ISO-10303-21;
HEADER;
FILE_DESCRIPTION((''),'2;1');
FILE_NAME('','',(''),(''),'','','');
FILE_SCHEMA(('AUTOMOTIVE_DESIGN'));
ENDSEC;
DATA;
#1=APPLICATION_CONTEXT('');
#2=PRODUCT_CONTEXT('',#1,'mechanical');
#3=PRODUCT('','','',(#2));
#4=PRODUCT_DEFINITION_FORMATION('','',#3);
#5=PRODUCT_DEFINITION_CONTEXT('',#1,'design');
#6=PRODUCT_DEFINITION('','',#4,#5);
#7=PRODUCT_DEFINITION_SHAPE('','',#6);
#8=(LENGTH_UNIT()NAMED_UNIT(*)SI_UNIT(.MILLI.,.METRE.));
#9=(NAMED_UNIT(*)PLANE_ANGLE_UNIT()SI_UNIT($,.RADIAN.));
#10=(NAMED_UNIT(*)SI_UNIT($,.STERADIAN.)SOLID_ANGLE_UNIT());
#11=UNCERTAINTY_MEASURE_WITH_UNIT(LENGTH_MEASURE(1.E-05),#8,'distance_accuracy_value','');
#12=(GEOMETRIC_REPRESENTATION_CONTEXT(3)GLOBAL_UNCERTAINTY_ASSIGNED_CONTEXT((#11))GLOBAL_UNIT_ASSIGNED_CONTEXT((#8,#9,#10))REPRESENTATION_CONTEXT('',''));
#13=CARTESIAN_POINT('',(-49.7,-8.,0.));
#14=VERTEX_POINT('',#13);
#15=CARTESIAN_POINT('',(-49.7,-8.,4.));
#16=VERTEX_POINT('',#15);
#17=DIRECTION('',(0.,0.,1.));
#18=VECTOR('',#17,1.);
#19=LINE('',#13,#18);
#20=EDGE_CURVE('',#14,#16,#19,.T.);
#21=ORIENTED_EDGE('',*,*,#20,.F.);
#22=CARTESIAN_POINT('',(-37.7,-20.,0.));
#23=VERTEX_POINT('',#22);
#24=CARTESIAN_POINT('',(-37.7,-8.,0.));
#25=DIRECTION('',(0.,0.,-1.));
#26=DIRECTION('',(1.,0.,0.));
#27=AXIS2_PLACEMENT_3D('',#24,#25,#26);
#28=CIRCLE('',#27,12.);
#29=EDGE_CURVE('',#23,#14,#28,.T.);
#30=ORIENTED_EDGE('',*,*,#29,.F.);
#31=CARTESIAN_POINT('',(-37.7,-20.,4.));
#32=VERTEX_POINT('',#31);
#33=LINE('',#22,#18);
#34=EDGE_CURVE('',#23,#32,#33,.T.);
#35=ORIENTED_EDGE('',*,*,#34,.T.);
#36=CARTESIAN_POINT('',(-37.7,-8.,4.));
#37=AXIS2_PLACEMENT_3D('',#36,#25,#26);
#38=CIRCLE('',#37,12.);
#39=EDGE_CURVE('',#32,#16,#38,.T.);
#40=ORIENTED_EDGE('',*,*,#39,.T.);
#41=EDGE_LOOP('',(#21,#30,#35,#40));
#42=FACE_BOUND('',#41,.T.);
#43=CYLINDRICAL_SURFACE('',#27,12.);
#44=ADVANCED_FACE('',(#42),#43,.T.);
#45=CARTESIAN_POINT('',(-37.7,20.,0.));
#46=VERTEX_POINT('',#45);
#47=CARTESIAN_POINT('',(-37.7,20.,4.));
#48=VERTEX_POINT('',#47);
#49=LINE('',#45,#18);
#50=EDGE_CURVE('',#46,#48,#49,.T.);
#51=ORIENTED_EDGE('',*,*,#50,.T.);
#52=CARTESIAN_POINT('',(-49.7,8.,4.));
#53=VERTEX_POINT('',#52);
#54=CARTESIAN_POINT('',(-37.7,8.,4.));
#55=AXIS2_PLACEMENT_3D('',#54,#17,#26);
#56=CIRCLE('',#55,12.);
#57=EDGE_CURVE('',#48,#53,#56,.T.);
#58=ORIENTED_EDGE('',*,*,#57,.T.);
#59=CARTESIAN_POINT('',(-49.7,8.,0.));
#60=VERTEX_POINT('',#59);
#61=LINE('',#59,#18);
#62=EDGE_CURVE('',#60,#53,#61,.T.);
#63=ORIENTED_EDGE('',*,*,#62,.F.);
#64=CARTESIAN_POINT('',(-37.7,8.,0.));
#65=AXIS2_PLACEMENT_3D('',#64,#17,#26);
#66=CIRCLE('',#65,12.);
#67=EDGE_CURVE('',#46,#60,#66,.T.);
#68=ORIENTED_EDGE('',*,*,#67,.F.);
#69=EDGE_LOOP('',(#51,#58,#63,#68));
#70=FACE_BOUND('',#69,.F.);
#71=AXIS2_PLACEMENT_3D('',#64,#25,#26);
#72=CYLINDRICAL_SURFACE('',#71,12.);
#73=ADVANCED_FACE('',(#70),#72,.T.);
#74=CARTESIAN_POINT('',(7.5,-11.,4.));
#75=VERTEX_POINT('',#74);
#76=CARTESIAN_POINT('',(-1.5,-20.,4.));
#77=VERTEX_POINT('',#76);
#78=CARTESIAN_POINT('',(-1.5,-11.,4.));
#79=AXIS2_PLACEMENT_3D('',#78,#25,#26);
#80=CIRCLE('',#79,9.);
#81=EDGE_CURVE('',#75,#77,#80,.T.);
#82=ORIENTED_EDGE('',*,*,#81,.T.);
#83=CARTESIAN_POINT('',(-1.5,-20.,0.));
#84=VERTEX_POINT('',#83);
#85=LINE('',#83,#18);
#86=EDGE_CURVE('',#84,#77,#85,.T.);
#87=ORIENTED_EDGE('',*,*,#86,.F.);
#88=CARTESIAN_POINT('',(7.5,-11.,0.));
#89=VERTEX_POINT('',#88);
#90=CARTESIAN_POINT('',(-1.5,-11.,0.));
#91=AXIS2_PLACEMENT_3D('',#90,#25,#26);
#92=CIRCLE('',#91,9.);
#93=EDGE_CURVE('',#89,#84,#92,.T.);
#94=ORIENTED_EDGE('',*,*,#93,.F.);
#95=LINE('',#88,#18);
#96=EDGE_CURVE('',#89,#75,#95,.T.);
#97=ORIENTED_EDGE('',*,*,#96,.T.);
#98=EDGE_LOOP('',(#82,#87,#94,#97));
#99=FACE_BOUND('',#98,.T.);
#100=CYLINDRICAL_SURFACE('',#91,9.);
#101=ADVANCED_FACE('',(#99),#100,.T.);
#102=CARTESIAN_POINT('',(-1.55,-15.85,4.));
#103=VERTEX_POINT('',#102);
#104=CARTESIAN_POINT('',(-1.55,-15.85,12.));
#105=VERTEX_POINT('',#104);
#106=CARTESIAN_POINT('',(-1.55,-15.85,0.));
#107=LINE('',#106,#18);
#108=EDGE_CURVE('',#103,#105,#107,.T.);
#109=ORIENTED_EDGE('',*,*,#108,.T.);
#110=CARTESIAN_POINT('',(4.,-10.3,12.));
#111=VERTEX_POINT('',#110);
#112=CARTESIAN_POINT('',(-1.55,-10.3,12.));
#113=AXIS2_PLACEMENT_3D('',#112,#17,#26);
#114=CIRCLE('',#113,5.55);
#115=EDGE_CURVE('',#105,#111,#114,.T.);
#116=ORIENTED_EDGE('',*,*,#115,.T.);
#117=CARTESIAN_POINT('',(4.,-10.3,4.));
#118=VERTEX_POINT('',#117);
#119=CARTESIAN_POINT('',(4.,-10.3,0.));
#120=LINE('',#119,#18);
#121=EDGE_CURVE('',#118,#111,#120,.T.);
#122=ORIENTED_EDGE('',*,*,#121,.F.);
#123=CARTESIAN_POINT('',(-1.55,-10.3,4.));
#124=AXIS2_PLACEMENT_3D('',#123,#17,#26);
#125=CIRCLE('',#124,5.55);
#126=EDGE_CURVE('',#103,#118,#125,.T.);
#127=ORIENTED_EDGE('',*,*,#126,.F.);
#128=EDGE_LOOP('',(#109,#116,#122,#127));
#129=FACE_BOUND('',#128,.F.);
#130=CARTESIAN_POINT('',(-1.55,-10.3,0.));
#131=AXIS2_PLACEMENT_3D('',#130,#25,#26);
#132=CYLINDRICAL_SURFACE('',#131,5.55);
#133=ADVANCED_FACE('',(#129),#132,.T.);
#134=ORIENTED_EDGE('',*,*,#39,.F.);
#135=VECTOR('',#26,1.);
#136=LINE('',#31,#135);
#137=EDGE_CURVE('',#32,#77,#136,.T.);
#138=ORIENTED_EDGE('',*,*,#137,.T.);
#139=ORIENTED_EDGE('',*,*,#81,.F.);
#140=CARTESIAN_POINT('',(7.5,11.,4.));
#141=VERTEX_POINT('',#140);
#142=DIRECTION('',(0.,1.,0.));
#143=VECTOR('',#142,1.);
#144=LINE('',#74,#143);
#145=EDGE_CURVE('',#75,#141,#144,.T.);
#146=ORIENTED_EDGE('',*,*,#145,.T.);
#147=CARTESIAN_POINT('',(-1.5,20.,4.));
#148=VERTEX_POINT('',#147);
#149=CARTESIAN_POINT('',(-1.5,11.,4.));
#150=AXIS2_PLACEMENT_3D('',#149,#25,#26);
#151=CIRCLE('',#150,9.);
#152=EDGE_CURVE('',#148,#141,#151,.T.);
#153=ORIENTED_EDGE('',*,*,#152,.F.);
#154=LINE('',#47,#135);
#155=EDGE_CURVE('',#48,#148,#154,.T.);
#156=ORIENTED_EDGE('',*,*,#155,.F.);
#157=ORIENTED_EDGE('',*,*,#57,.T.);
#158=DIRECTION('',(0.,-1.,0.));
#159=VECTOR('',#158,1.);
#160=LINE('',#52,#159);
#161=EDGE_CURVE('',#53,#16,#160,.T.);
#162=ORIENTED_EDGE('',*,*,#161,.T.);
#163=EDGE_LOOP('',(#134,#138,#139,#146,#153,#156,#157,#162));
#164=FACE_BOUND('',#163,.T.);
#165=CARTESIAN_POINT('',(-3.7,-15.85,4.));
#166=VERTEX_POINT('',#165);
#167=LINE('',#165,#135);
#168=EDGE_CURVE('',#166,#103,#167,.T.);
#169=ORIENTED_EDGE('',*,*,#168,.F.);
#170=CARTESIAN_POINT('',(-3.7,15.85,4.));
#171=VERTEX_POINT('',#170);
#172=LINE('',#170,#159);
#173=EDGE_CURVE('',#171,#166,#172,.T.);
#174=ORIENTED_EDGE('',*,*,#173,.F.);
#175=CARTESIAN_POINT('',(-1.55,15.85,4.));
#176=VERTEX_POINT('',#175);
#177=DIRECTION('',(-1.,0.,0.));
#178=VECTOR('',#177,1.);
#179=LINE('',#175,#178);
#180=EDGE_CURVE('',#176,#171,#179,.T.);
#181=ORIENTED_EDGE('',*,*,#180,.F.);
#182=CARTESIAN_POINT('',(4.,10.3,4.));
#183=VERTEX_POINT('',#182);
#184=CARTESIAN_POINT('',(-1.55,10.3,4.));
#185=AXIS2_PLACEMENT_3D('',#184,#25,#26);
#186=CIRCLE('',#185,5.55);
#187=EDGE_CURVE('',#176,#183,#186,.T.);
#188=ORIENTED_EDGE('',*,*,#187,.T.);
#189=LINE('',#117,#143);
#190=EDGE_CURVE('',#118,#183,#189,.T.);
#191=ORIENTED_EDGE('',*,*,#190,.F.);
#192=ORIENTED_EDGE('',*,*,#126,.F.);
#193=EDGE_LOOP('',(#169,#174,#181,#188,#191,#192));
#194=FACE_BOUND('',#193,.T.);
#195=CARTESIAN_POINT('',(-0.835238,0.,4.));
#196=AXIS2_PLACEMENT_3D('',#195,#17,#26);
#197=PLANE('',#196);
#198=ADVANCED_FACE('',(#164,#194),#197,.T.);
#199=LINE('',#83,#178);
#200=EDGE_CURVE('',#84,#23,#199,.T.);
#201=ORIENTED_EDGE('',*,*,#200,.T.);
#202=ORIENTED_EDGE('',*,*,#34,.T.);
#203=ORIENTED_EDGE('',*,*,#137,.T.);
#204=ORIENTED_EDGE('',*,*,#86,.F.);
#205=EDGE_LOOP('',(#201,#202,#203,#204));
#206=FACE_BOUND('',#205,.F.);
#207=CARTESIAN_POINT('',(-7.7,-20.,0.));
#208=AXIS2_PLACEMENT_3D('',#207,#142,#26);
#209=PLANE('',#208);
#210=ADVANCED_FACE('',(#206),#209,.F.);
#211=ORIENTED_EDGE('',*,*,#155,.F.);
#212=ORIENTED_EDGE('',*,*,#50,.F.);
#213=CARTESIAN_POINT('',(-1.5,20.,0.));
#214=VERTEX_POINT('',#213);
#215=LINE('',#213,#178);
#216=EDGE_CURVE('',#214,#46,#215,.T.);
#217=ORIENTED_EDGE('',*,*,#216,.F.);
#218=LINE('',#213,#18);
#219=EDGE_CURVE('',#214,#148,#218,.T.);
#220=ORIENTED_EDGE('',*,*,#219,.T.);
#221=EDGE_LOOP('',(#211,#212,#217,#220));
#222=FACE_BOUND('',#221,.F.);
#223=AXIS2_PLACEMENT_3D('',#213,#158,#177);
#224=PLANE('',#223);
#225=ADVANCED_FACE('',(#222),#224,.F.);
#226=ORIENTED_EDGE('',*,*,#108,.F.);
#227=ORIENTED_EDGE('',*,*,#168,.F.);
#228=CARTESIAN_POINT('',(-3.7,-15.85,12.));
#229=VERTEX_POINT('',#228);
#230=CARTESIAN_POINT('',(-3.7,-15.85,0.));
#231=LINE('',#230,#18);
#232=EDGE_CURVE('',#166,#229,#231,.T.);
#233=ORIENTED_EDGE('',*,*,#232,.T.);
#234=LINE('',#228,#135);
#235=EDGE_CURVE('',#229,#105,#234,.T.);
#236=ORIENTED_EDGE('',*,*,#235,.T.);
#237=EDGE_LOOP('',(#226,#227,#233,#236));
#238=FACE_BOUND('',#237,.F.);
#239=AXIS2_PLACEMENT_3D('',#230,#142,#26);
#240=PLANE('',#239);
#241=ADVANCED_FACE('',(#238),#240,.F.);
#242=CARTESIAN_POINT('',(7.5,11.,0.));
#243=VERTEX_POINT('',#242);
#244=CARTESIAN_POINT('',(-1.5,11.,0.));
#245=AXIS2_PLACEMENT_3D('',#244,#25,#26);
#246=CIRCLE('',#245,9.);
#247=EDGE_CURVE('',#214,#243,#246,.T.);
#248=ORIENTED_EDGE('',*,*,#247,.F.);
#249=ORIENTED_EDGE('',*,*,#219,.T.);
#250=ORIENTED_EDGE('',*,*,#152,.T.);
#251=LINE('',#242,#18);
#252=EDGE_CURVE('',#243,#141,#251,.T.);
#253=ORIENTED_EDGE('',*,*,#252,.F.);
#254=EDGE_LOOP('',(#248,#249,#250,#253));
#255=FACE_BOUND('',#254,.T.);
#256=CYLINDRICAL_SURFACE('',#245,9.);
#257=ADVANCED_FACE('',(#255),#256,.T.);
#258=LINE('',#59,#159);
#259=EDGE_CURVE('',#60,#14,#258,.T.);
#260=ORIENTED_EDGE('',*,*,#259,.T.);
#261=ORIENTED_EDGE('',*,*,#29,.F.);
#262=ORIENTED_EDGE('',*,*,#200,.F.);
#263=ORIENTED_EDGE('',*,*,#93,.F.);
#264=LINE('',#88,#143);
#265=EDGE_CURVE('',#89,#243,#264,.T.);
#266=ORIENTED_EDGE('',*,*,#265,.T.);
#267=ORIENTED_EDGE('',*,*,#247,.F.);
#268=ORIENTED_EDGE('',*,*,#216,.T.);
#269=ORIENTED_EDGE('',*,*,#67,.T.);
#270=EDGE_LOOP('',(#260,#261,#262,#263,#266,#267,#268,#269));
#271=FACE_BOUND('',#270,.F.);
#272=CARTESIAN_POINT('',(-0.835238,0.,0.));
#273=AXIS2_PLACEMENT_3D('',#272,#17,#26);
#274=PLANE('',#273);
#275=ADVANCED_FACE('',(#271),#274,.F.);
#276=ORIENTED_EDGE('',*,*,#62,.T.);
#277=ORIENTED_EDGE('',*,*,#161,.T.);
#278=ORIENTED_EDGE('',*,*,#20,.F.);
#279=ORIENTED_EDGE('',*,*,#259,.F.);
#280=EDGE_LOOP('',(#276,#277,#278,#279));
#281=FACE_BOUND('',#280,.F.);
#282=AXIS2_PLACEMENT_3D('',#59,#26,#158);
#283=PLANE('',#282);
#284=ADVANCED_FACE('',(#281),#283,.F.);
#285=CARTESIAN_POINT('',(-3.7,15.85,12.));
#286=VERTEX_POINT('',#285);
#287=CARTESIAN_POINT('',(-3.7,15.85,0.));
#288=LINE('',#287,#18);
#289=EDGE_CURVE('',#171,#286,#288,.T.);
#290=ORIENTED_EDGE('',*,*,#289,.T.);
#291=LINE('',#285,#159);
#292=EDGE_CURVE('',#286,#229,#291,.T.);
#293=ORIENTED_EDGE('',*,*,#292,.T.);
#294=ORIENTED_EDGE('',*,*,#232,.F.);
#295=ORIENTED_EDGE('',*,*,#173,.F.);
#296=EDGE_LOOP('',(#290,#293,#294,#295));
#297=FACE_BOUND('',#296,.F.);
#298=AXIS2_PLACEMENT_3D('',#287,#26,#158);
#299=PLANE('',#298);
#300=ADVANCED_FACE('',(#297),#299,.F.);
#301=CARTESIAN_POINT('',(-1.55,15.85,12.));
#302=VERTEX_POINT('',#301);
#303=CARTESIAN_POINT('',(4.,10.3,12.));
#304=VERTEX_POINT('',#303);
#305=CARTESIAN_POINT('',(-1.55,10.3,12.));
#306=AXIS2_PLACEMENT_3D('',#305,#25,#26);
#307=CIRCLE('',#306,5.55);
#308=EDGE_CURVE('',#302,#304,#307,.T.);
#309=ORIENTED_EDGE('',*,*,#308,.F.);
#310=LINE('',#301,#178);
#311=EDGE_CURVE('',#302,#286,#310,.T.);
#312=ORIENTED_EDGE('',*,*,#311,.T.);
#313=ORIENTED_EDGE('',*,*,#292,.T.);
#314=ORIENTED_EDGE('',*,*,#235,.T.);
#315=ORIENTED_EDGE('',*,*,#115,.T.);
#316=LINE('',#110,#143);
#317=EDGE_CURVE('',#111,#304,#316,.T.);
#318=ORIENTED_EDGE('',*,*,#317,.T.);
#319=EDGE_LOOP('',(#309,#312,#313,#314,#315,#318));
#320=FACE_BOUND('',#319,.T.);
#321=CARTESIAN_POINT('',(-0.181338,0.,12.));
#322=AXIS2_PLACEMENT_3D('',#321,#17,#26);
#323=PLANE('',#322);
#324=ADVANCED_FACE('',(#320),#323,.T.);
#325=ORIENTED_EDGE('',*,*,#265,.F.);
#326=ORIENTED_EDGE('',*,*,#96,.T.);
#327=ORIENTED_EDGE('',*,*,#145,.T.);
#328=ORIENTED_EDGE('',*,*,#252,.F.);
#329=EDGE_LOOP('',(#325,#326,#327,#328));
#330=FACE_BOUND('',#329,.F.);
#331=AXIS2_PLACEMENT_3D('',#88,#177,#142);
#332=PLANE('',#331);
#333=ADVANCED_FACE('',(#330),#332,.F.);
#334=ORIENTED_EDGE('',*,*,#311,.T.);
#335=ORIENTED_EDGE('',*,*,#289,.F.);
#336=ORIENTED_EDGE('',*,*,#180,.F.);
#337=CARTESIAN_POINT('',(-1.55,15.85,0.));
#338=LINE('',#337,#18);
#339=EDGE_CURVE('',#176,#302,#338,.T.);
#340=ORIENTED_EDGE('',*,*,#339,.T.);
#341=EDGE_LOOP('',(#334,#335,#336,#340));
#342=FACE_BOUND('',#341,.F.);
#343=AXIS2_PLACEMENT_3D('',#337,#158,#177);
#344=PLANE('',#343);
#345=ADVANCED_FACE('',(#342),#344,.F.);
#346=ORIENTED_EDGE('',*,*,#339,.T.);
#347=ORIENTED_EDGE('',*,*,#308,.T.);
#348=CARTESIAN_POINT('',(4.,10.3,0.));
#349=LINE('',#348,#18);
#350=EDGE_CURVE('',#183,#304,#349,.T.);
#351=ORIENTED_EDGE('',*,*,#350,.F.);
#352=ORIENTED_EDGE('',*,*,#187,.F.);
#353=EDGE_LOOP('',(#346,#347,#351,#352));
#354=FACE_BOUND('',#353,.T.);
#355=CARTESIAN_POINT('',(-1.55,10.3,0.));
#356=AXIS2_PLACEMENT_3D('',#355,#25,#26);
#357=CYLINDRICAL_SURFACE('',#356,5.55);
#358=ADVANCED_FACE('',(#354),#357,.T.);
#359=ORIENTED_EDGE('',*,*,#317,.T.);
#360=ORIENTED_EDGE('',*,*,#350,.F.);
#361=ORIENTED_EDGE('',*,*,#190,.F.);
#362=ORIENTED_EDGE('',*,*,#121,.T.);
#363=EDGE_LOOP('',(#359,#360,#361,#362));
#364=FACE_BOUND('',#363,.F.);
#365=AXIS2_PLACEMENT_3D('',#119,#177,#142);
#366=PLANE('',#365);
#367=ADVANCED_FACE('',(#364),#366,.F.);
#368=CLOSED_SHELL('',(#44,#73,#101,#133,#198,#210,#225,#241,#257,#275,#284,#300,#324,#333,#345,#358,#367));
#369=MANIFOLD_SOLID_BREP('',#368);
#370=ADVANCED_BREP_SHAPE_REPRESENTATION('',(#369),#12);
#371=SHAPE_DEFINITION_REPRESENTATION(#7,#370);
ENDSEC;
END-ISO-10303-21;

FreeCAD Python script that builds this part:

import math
import FreeCAD as App
import Part
import Sketcher

V = App.Vector

doc = App.newDocument("Part")
body = doc.addObject("PartDesign::Body", "Body")

sketch1 = body.newObject("Sketcher::SketchObject", "Sketch")
sketch1.AttachmentSupport = (doc.getObject("XY_Plane"), [""])
sketch1.MapMode = "FlatFace"
sketch1.addGeometry(Part.ArcOfCircle(Part.Circle(V(-1.5, 11, 0), V(0, 0, 1), 9), math.radians(0), math.radians(90)), False)
sketch1.addGeometry(Part.LineSegment(V(-1.5, 20, 0), V(-7.7, 20, 0)), False)
sketch1.addGeometry(Part.LineSegment(V(-7.7, 20, 0), V(-7.7, -20, 0)), False)
sketch1.addGeometry(Part.LineSegment(V(-7.7, -20, 0), V(-1.5, -20, 0)), False)
sketch1.addGeometry(Part.ArcOfCircle(Part.Circle(V(-1.5, -11, 0), V(0, 0, 1), 9), math.radians(-90), math.radians(0)), False)
sketch1.addGeometry(Part.LineSegment(V(7.5, -11, 0), V(7.5, 11, 0)), False)
sketch1.addGeometry(Part.LineSegment(V(-3.7, 15.8, 0), V(-1.6, 15.8, 0)), False)
sketch1.addGeometry(Part.ArcOfCircle(Part.Circle(V(-1.6, 10.3, 0), V(0, 0, 1), 5.5), math.radians(0), math.radians(90)), False)
sketch1.addGeometry(Part.LineSegment(V(4, 10.3, 0), V(4, -10.3, 0)), False)
sketch1.addGeometry(Part.ArcOfCircle(Part.Circle(V(-1.6, -10.3, 0), V(0, 0, 1), 5.5), math.radians(-90), math.radians(0)), False)
sketch1.addGeometry(Part.LineSegment(V(-1.6, -15.8, 0), V(-3.7, -15.8, 0)), False)
sketch1.addGeometry(Part.LineSegment(V(-3.7, -15.8, 0), V(-3.7, 15.8, 0)), False)
sketch1.addConstraint(Sketcher.Constraint("Tangent", 0, 2, 1, 1))
sketch1.addConstraint(Sketcher.Constraint("Coincident", 1, 2, 2, 1))
sketch1.addConstraint(Sketcher.Constraint("Coincident", 2, 2, 3, 1))
sketch1.addConstraint(Sketcher.Constraint("Tangent", 3, 2, 4, 1))
sketch1.addConstraint(Sketcher.Constraint("Tangent", 4, 2, 5, 1))
sketch1.addConstraint(Sketcher.Constraint("Tangent", 5, 2, 0, 1))
sketch1.addConstraint(Sketcher.Constraint("Tangent", 6, 2, 7, 2))
sketch1.addConstraint(Sketcher.Constraint("Tangent", 7, 1, 8, 1))
sketch1.addConstraint(Sketcher.Constraint("Tangent", 8, 2, 9, 2))
sketch1.addConstraint(Sketcher.Constraint("Tangent", 9, 1, 10, 1))
sketch1.addConstraint(Sketcher.Constraint("Coincident", 10, 2, 11, 1))
sketch1.addConstraint(Sketcher.Constraint("Coincident", 11, 2, 6, 1))
sketch1.addConstraint(Sketcher.Constraint("Horizontal", 1))
sketch1.addConstraint(Sketcher.Constraint("Vertical", 2))
sketch1.addConstraint(Sketcher.Constraint("Horizontal", 3))
sketch1.addConstraint(Sketcher.Constraint("Vertical", 5))
sketch1.addConstraint(Sketcher.Constraint("Horizontal", 6))
sketch1.addConstraint(Sketcher.Constraint("Vertical", 8))
sketch1.addConstraint(Sketcher.Constraint("Horizontal", 10))
sketch1.addConstraint(Sketcher.Constraint("Vertical", 11))
sketch1.addConstraint(Sketcher.Constraint("Equal", 0, 4))
sketch1.addConstraint(Sketcher.Constraint("Equal", 7, 9))
sketch1.addConstraint(Sketcher.Constraint("Radius", 0, 9.0))
sketch1.addConstraint(Sketcher.Constraint("DistanceY", 2, 2, 2, 1, 40.0))
sketch1.addConstraint(Sketcher.Constraint("Radius", 7, 5.55))
sketch1.addConstraint(Sketcher.Constraint("DistanceX", 1, 2, 1, 1, 6.2))
sketch1.addConstraint(Sketcher.Constraint("DistanceY", 8, 2, 8, 1, 20.6))
sketch1.addConstraint(Sketcher.Constraint("DistanceY", -1, 1, 0, 3, 11.0))
sketch1.addConstraint(Sketcher.Constraint("DistanceX", -1, 1, 7, 1, 4.0))
sketch1.addConstraint(Sketcher.Constraint("DistanceX", 2, 2, 10, 2, 4.0))
sketch1.addConstraint(Sketcher.Constraint("DistanceX", 6, 1, 6, 2, 2.15))
sketch1.addConstraint(Sketcher.Constraint("DistanceY", -1, 1, 7, 3, 10.3))
pad1 = body.newObject("PartDesign::Pad", "Pad")
pad1.Profile = sketch1
pad1.Length = 4

sketch2 = body.newObject("Sketcher::SketchObject", "Sketch001")
sketch2.AttachmentSupport = (doc.getObject("XY_Plane"), [""])
sketch2.MapMode = "FlatFace"
sketch2.addGeometry(Part.ArcOfCircle(Part.Circle(V(-38, -8, 0), V(0, 0, 1), 12), math.radians(180), math.radians(270)), False)
sketch2.addGeometry(Part.LineSegment(V(-38, -20, 0), V(-8, -20, 0)), False)
sketch2.addGeometry(Part.LineSegment(V(-8, -20, 0), V(-8, 20, 0)), False)
sketch2.addGeometry(Part.LineSegment(V(-8, 20, 0), V(-38, 20, 0)), False)
sketch2.addGeometry(Part.ArcOfCircle(Part.Circle(V(-38, 8, 0), V(0, 0, 1), 12), math.radians(90), math.radians(180)), False)
sketch2.addGeometry(Part.LineSegment(V(-50, 8, 0), V(-50, -8, 0)), False)
sketch2.addConstraint(Sketcher.Constraint("Tangent", 0, 2, 1, 1))
sketch2.addConstraint(Sketcher.Constraint("Coincident", 1, 2, 2, 1))
sketch2.addConstraint(Sketcher.Constraint("Coincident", 2, 2, 3, 1))
sketch2.addConstraint(Sketcher.Constraint("Tangent", 3, 2, 4, 1))
sketch2.addConstraint(Sketcher.Constraint("Tangent", 4, 2, 5, 1))
sketch2.addConstraint(Sketcher.Constraint("Tangent", 5, 2, 0, 1))
sketch2.addConstraint(Sketcher.Constraint("Horizontal", 1))
sketch2.addConstraint(Sketcher.Constraint("Vertical", 2))
sketch2.addConstraint(Sketcher.Constraint("Horizontal", 3))
sketch2.addConstraint(Sketcher.Constraint("Vertical", 5))
sketch2.addConstraint(Sketcher.Constraint("Equal", 0, 4))
sketch2.addConstraint(Sketcher.Constraint("Radius", 0, 12.0))
sketch2.addConstraint(Sketcher.Constraint("DistanceX", 1, 1, 1, 2, 30.0))
sketch2.addConstraint(Sketcher.Constraint("DistanceY", 2, 1, 2, 2, 40.0))
sketch2.addConstraint(Sketcher.Constraint("DistanceY", 0, 3, -1, 1, 8.0))
sketch2.addConstraint(Sketcher.Constraint("DistanceX", 0, 3, -1, 1, 37.7))
pad2 = body.newObject("PartDesign::Pad", "Pad001")
pad2.Profile = sketch2
pad2.Length = 4

sketch3 = body.newObject("Sketcher::SketchObject", "Sketch002")
sketch3.AttachmentSupport = (doc.getObject("XY_Plane"), [""])
sketch3.MapMode = "FlatFace"
sketch3.addGeometry(Part.LineSegment(V(-3.7, 15.8, 0), V(-3.7, -15.8, 0)), False)
sketch3.addGeometry(Part.LineSegment(V(-3.7, -15.8, 0), V(-1.6, -15.8, 0)), False)
sketch3.addGeometry(Part.ArcOfCircle(Part.Circle(V(-1.6, -10.3, 0), V(0, 0, 1), 5.5), math.radians(-90), math.radians(0)), False)
sketch3.addGeometry(Part.LineSegment(V(4, -10.3, 0), V(4, 10.3, 0)), False)
sketch3.addGeometry(Part.ArcOfCircle(Part.Circle(V(-1.6, 10.3, 0), V(0, 0, 1), 5.5), math.radians(0), math.radians(90)), False)
sketch3.addGeometry(Part.LineSegment(V(-1.6, 15.8, 0), V(-3.7, 15.8, 0)), False)
sketch3.addConstraint(Sketcher.Constraint("Coincident", 0, 2, 1, 1))
sketch3.addConstraint(Sketcher.Constraint("Tangent", 1, 2, 2, 1))
sketch3.addConstraint(Sketcher.Constraint("Tangent", 2, 2, 3, 1))
sketch3.addConstraint(Sketcher.Constraint("Tangent", 3, 2, 4, 1))
sketch3.addConstraint(Sketcher.Constraint("Tangent", 4, 2, 5, 1))
sketch3.addConstraint(Sketcher.Constraint("Coincident", 5, 2, 0, 1))
sketch3.addConstraint(Sketcher.Constraint("Vertical", 0))
sketch3.addConstraint(Sketcher.Constraint("Horizontal", 1))
sketch3.addConstraint(Sketcher.Constraint("Vertical", 3))
sketch3.addConstraint(Sketcher.Constraint("Horizontal", 5))
sketch3.addConstraint(Sketcher.Constraint("Equal", 2, 4))
sketch3.addConstraint(Sketcher.Constraint("Radius", 2, 5.55))
sketch3.addConstraint(Sketcher.Constraint("DistanceY", 0, 2, 0, 1, 31.7))
sketch3.addConstraint(Sketcher.Constraint("DistanceX", -1, 1, 2, 2, 4.0))
sketch3.addConstraint(Sketcher.Constraint("DistanceX", 1, 1, 1, 2, 2.15))
sketch3.addConstraint(Sketcher.Constraint("DistanceY", 2, 3, -1, 1, 10.3))
pad3 = body.newObject("PartDesign::Pad", "Pad002")
pad3.Profile = sketch3
pad3.Length = 12

doc.recompute()
